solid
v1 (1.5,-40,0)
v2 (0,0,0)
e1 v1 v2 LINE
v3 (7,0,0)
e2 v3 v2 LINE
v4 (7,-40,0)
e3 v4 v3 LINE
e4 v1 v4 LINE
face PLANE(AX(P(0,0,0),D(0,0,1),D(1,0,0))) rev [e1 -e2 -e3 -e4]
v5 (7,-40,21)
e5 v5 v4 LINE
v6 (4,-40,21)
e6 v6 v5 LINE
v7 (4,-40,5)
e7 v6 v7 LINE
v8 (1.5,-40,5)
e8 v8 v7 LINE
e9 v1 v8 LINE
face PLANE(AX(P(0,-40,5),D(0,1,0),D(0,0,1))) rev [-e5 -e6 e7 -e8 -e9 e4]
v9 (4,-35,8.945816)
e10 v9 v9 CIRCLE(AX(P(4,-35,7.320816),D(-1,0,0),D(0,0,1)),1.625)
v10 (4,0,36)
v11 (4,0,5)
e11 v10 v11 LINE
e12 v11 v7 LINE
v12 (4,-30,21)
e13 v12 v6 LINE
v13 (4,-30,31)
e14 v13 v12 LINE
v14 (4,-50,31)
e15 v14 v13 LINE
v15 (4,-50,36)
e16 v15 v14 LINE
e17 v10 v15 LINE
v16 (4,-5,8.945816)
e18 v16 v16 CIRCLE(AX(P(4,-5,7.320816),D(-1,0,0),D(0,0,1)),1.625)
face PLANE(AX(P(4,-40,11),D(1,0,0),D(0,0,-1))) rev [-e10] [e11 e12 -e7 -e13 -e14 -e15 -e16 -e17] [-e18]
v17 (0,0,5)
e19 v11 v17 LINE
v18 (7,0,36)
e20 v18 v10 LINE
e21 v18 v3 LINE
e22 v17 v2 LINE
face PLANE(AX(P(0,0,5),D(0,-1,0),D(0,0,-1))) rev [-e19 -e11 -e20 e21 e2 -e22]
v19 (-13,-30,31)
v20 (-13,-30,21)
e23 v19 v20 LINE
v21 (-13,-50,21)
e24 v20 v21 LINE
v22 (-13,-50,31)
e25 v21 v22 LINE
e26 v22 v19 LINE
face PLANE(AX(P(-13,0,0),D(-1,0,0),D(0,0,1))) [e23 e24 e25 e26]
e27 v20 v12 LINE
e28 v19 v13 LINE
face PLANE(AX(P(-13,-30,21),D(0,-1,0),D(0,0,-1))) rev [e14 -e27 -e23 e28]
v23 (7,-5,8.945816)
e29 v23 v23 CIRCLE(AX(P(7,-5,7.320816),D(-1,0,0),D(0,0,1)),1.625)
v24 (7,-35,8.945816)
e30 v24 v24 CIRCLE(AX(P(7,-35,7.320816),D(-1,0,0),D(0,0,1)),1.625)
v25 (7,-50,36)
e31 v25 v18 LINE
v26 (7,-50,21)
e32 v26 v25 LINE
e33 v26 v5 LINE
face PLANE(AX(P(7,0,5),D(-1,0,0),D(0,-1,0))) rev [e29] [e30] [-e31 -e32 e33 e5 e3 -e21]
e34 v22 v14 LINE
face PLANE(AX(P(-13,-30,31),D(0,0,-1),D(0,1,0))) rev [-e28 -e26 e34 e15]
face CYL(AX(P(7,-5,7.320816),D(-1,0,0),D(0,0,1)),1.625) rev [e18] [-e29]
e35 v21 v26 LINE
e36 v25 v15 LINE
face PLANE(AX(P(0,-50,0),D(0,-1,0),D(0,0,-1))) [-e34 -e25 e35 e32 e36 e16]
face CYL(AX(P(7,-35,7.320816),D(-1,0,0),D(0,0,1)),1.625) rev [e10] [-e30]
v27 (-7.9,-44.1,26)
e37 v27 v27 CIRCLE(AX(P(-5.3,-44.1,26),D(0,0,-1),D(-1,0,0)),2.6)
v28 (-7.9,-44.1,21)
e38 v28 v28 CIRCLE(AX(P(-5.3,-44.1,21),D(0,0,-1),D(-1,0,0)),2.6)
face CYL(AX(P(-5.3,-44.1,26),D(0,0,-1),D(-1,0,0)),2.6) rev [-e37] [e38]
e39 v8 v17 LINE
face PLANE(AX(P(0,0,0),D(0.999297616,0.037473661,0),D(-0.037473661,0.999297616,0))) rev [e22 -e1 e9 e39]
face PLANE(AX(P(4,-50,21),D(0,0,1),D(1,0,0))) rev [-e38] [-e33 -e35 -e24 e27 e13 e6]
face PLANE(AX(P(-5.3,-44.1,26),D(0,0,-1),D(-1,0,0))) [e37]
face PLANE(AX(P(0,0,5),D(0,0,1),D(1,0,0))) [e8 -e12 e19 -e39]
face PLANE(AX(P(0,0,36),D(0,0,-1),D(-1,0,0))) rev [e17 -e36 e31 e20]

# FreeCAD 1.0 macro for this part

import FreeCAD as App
import Part
import Sketcher

V = App.Vector


def add_polygon(sketch, points):
    """Adds a closed chain of lines whose ends are joined by coincident constraints."""
    first, n = sketch.GeometryCount, len(points)
    for a, b in zip(points, points[1:] + points[:1]):
        sketch.addGeometry(Part.LineSegment(App.Vector(*a, 0), App.Vector(*b, 0)), False)
    for i in range(n):
        sketch.addConstraint(Sketcher.Constraint("Coincident", first + i, 2, first + (i + 1) % n, 1))

doc = App.newDocument("Part")
body = doc.addObject("PartDesign::Body", "Body")

# Sketch on XY plane
sketch1 = body.newObject("Sketcher::SketchObject", "Sketch")
sketch1.AttachmentSupport = (doc.getObject("XY_Plane"), [""])
sketch1.MapMode = "FlatFace"
add_polygon(sketch1, [(0, 0), (0, -40), (7, -40), (7, 0)])  # lines 0-3
sketch1.addConstraint(Sketcher.Constraint("Vertical", 0))
sketch1.addConstraint(Sketcher.Constraint("Horizontal", 1))
sketch1.addConstraint(Sketcher.Constraint("Vertical", 2))
sketch1.addConstraint(Sketcher.Constraint("Horizontal", 3))
sketch1.addConstraint(Sketcher.Constraint("Coincident", 3, 2, -1, 1))
sketch1.addConstraint(Sketcher.Constraint("DistanceX", 1, 1, 1, 2, 7.0))
sketch1.addConstraint(Sketcher.Constraint("DistanceY", 0, 2, 0, 1, 40.0))
pad1 = body.newObject("PartDesign::Pad", "Pad")
pad1.Profile = sketch1
pad1.Length = 5

# Sketch on XY plane
sketch2 = body.newObject("Sketcher::SketchObject", "Sketch001")
sketch2.AttachmentSupport = (doc.getObject("XY_Plane"), [""])
sketch2.MapMode = "FlatFace"
sketch2.AttachmentOffset = App.Placement(V(0, 0, 5), App.Rotation())
add_polygon(sketch2, [(0, 0), (0, -40), (1.5, -40)])  # lines 0-2
sketch2.addConstraint(Sketcher.Constraint("Vertical", 0))
sketch2.addConstraint(Sketcher.Constraint("Horizontal", 1))
sketch2.addConstraint(Sketcher.Constraint("Coincident", 2, 2, -1, 1))
sketch2.addConstraint(Sketcher.Constraint("DistanceY", 0, 2, 0, 1, 40.0))
sketch2.addConstraint(Sketcher.Constraint("DistanceX", 1, 1, 1, 2, 1.5))
pocket1 = body.newObject("PartDesign::Pocket", "Pocket")
pocket1.Profile = sketch2
pocket1.Length = 5

# Sketch on XY plane
sketch3 = body.newObject("Sketcher::SketchObject", "Sketch002")
sketch3.AttachmentSupport = (doc.getObject("XY_Plane"), [""])
sketch3.MapMode = "FlatFace"
sketch3.AttachmentOffset = App.Placement(V(0, 0, 5), App.Rotation())
add_polygon(sketch3, [(4, 0), (4, -40), (7, -40), (7, 0)])  # lines 0-3
sketch3.addConstraint(Sketcher.Constraint("Vertical", 0))
sketch3.addConstraint(Sketcher.Constraint("Horizontal", 1))
sketch3.addConstraint(Sketcher.Constraint("Vertical", 2))
sketch3.addConstraint(Sketcher.Constraint("Horizontal", 3))
sketch3.addConstraint(Sketcher.Constraint("PointOnObject", 2, 2, -1))
sketch3.addConstraint(Sketcher.Constraint("DistanceX", 1, 1, 1, 2, 3.0))
sketch3.addConstraint(Sketcher.Constraint("DistanceY", 0, 2, 0, 1, 40.0))
sketch3.addConstraint(Sketcher.Constraint("DistanceX", -1, 1, 0, 2, 4.0))
pad2 = body.newObject("PartDesign::Pad", "Pad001")
pad2.Profile = sketch3
pad2.Length = 6

# Sketch on XY plane
sketch4 = body.newObject("Sketcher::SketchObject", "Sketch003")
sketch4.AttachmentSupport = (doc.getObject("XY_Plane"), [""])
sketch4.MapMode = "FlatFace"
sketch4.AttachmentOffset = App.Placement(V(0, 0, 11), App.Rotation())
add_polygon(sketch4, [(4, 0), (4, -10), (7, -10), (7, 0)])  # lines 0-3
sketch4.addConstraint(Sketcher.Constraint("Vertical", 0))
sketch4.addConstraint(Sketcher.Constraint("Horizontal", 1))
sketch4.addConstraint(Sketcher.Constraint("Vertical", 2))
sketch4.addConstraint(Sketcher.Constraint("Horizontal", 3))
sketch4.addConstraint(Sketcher.Constraint("PointOnObject", 2, 2, -1))
sketch4.addConstraint(Sketcher.Constraint("DistanceX", 1, 1, 1, 2, 3.0))
sketch4.addConstraint(Sketcher.Constraint("DistanceY", 0, 2, 0, 1, 10.0))
sketch4.addConstraint(Sketcher.Constraint("DistanceX", -1, 1, 0, 2, 4.0))
pad3 = body.newObject("PartDesign::Pad", "Pad002")
pad3.Profile = sketch4
pad3.Length = 25

# Sketch on YZ plane
sketch5 = body.newObject("Sketcher::SketchObject", "Sketch004")
sketch5.AttachmentSupport = (doc.getObject("YZ_Plane"), [""])
sketch5.MapMode = "FlatFace"
sketch5.AttachmentOffset = App.Placement(V(0, 0, 4), App.Rotation())
sketch5.addGeometry(Part.Circle(V(-35, 7.3, 0), V(0, 0, 1), 1.6), False)
sketch5.addGeometry(Part.Circle(V(-5, 7.3, 0), V(0, 0, 1), 1.6), False)
sketch5.addConstraint(Sketcher.Constraint("Equal", 0, 1))
sketch5.addConstraint(Sketcher.Constraint("Horizontal", 0, 3, 1, 3))
sketch5.addConstraint(Sketcher.Constraint("Diameter", 0, 3.25))
sketch5.addConstraint(Sketcher.Constraint("DistanceX", 0, 3, -1, 1, 35.0))
sketch5.addConstraint(Sketcher.Constraint("DistanceX", 1, 3, -1, 1, 5.0))
sketch5.addConstraint(Sketcher.Constraint("DistanceY", -1, 1, 0, 3, 7.320816))
pocket2 = body.newObject("PartDesign::Pocket", "Pocket001")
pocket2.Profile = sketch5
pocket2.Type = "ThroughAll"
pocket2.Reversed = True

# Sketch on XY plane
sketch6 = body.newObject("Sketcher::SketchObject", "Sketch005")
sketch6.AttachmentSupport = (doc.getObject("XY_Plane"), [""])
sketch6.MapMode = "FlatFace"
sketch6.AttachmentOffset = App.Placement(V(0, 0, 11), App.Rotation())
add_polygon(sketch6, [(4, -10), (4, -40), (7, -40), (7, -10)])  # lines 0-3
sketch6.addConstraint(Sketcher.Constraint("Vertical", 0))
sketch6.addConstraint(Sketcher.Constraint("Horizontal", 1))
sketch6.addConstraint(Sketcher.Constraint("Vertical", 2))
sketch6.addConstraint(Sketcher.Constraint("Horizontal", 3))
sketch6.addConstraint(Sketcher.Constraint("DistanceX", 1, 1, 1, 2, 3.0))
sketch6.addConstraint(Sketcher.Constraint("DistanceY", 0, 2, 0, 1, 30.0))
sketch6.addConstraint(Sketcher.Constraint("DistanceX", -1, 1, 0, 2, 4.0))
sketch6.addConstraint(Sketcher.Constraint("DistanceY", 0, 2, -1, 1, 40.0))
pad4 = body.newObject("PartDesign::Pad", "Pad003")
pad4.Profile = sketch6
pad4.Length = 25

# Sketch on XZ plane
sketch7 = body.newObject("Sketcher::SketchObject", "Sketch006")
sketch7.AttachmentSupport = (doc.getObject("XZ_Plane"), [""])
sketch7.MapMode = "FlatFace"
sketch7.AttachmentOffset = App.Placement(V(0, 0, 40), App.Rotation())
add_polygon(sketch7, [(4, 36), (4, 21), (7, 21), (7, 36)])  # lines 0-3
sketch7.addConstraint(Sketcher.Constraint("Vertical", 0))
sketch7.addConstraint(Sketcher.Constraint("Horizontal", 1))
sketch7.addConstraint(Sketcher.Constraint("Vertical", 2))
sketch7.addConstraint(Sketcher.Constraint("Horizontal", 3))
sketch7.addConstraint(Sketcher.Constraint("DistanceX", 1, 1, 1, 2, 3.0))
sketch7.addConstraint(Sketcher.Constraint("DistanceY", 0, 2, 0, 1, 15.0))
sketch7.addConstraint(Sketcher.Constraint("DistanceX", -1, 1, 0, 2, 4.0))
sketch7.addConstraint(Sketcher.Constraint("DistanceY", -1, 1, 0, 2, 21.0))
pad5 = body.newObject("PartDesign::Pad", "Pad004")
pad5.Profile = sketch7
pad5.Length = 10

# Sketch on YZ plane
sketch8 = body.newObject("Sketcher::SketchObject", "Sketch007")
sketch8.AttachmentSupport = (doc.getObject("YZ_Plane"), [""])
sketch8.MapMode = "FlatFace"
sketch8.AttachmentOffset = App.Placement(V(0, 0, 4), App.Rotation())
add_polygon(sketch8, [(-30, 21), (-50, 21), (-50, 31), (-30, 31)])  # lines 0-3
sketch8.addConstraint(Sketcher.Constraint("Horizontal", 0))
sketch8.addConstraint(Sketcher.Constraint("Vertical", 1))
sketch8.addConstraint(Sketcher.Constraint("Horizontal", 2))
sketch8.addConstraint(Sketcher.Constraint("Vertical", 3))
sketch8.addConstraint(Sketcher.Constraint("DistanceX", 0, 2, 0, 1, 20.0))
sketch8.addConstraint(Sketcher.Constraint("DistanceY", 1, 1, 1, 2, 10.0))
sketch8.addConstraint(Sketcher.Constraint("DistanceX", 0, 2, -1, 1, 50.0))
sketch8.addConstraint(Sketcher.Constraint("DistanceY", -1, 1, 0, 2, 21.0))
pad6 = body.newObject("PartDesign::Pad", "Pad005")
pad6.Profile = sketch8
pad6.Length = 17
pad6.Reversed = True

# Sketch on XY plane
sketch9 = body.newObject("Sketcher::SketchObject", "Sketch008")
sketch9.AttachmentSupport = (doc.getObject("XY_Plane"), [""])
sketch9.MapMode = "FlatFace"
sketch9.AttachmentOffset = App.Placement(V(0, 0, 21), App.Rotation())
sketch9.addGeometry(Part.Circle(V(-5.3, -44.1, 0), V(0, 0, 1), 2.6), False)
sketch9.addConstraint(Sketcher.Constraint("Diameter", 0, 5.2))
sketch9.addConstraint(Sketcher.Constraint("DistanceX", 0, 3, -1, 1, 5.3))
sketch9.addConstraint(Sketcher.Constraint("DistanceY", 0, 3, -1, 1, 44.1))
pocket3 = body.newObject("PartDesign::Pocket", "Pocket002")
pocket3.Profile = sketch9
pocket3.Length = 5
pocket3.Reversed = True

doc.recompute()
